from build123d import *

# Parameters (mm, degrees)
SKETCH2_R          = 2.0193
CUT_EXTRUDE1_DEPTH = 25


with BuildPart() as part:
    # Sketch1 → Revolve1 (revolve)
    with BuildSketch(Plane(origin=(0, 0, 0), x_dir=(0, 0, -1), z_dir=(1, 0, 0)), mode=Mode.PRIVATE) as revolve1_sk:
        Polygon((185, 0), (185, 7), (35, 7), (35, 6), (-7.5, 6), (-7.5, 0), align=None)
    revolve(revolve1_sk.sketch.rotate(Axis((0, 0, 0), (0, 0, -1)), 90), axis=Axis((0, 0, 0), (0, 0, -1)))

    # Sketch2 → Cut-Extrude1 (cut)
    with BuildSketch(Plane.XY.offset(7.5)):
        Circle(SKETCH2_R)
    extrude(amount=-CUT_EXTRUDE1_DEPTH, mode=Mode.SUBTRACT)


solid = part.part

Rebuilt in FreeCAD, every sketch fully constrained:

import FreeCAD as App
import Part
import Sketcher

V = App.Vector
Q = App.Units.Quantity


def add_polygon(sketch, points):
    """Adds a closed chain of lines whose ends are joined by coincident constraints."""
    first, n = sketch.GeometryCount, len(points)
    for a, b in zip(points, points[1:] + points[:1]):
        sketch.addGeometry(Part.LineSegment(App.Vector(*a, 0), App.Vector(*b, 0)), False)
    for i in range(n):
        sketch.addConstraint(Sketcher.Constraint("Coincident", first + i, 2, first + (i + 1) % n, 1))

doc = App.newDocument("Part")
body = doc.addObject("PartDesign::Body", "Body")

sketch1 = body.newObject("Sketcher::SketchObject", "Sketch")
sketch1.AttachmentSupport = (doc.getObject("YZ_Plane"), [""])
sketch1.MapMode = "FlatFace"
add_polygon(sketch1, [(0, -185), (7, -185), (7, -35), (6, -35), (6, 7.5), (0, 7.5)])
sketch1.addConstraint(Sketcher.Constraint("Horizontal", 0))
sketch1.addConstraint(Sketcher.Constraint("Vertical", 1))
sketch1.addConstraint(Sketcher.Constraint("Horizontal", 2))
sketch1.addConstraint(Sketcher.Constraint("Vertical", 3))
sketch1.addConstraint(Sketcher.Constraint("Horizontal", 4))
sketch1.addConstraint(Sketcher.Constraint("Vertical", 5))
sketch1.addConstraint(Sketcher.Constraint("PointOnObject", 4, 2, -2))
sketch1.addConstraint(Sketcher.Constraint("DistanceX", 0, 1, 0, 2, Q("7 mm")))
sketch1.addConstraint(Sketcher.Constraint("DistanceX", 2, 2, 2, 1, Q("1 mm")))
sketch1.addConstraint(Sketcher.Constraint("DistanceY", 1, 1, 1, 2, Q("150 mm")))
sketch1.addConstraint(Sketcher.Constraint("DistanceY", 3, 1, 3, 2, Q("42.5 mm")))
sketch1.addConstraint(Sketcher.Constraint("DistanceY", 0, 2, -1, 1, Q("185 mm")))
revolution = body.newObject("PartDesign::Revolution", "Revolution")
revolution.Profile = sketch1
revolution.ReferenceAxis = (sketch1, ["V_Axis"])
revolution.Angle = 360

sketch2 = body.newObject("Sketcher::SketchObject", "Sketch001")
sketch2.AttachmentSupport = (doc.getObject("XY_Plane"), [""])
sketch2.MapMode = "FlatFace"
sketch2.AttachmentOffset = App.Placement(V(0, 0, 7.5), App.Rotation())
sketch2.addGeometry(Part.Circle(V(0, 0, 0), V(0, 0, 1), 2.0193), False)
sketch2.addConstraint(Sketcher.Constraint("Coincident", 0, 3, -1, 1))
sketch2.addConstraint(Sketcher.Constraint("Diameter", 0, Q("4.0386 mm")))
pocket1 = body.newObject("PartDesign::Pocket", "Pocket")
pocket1.Profile = sketch2
pocket1.Length = 25

doc.recompute()
